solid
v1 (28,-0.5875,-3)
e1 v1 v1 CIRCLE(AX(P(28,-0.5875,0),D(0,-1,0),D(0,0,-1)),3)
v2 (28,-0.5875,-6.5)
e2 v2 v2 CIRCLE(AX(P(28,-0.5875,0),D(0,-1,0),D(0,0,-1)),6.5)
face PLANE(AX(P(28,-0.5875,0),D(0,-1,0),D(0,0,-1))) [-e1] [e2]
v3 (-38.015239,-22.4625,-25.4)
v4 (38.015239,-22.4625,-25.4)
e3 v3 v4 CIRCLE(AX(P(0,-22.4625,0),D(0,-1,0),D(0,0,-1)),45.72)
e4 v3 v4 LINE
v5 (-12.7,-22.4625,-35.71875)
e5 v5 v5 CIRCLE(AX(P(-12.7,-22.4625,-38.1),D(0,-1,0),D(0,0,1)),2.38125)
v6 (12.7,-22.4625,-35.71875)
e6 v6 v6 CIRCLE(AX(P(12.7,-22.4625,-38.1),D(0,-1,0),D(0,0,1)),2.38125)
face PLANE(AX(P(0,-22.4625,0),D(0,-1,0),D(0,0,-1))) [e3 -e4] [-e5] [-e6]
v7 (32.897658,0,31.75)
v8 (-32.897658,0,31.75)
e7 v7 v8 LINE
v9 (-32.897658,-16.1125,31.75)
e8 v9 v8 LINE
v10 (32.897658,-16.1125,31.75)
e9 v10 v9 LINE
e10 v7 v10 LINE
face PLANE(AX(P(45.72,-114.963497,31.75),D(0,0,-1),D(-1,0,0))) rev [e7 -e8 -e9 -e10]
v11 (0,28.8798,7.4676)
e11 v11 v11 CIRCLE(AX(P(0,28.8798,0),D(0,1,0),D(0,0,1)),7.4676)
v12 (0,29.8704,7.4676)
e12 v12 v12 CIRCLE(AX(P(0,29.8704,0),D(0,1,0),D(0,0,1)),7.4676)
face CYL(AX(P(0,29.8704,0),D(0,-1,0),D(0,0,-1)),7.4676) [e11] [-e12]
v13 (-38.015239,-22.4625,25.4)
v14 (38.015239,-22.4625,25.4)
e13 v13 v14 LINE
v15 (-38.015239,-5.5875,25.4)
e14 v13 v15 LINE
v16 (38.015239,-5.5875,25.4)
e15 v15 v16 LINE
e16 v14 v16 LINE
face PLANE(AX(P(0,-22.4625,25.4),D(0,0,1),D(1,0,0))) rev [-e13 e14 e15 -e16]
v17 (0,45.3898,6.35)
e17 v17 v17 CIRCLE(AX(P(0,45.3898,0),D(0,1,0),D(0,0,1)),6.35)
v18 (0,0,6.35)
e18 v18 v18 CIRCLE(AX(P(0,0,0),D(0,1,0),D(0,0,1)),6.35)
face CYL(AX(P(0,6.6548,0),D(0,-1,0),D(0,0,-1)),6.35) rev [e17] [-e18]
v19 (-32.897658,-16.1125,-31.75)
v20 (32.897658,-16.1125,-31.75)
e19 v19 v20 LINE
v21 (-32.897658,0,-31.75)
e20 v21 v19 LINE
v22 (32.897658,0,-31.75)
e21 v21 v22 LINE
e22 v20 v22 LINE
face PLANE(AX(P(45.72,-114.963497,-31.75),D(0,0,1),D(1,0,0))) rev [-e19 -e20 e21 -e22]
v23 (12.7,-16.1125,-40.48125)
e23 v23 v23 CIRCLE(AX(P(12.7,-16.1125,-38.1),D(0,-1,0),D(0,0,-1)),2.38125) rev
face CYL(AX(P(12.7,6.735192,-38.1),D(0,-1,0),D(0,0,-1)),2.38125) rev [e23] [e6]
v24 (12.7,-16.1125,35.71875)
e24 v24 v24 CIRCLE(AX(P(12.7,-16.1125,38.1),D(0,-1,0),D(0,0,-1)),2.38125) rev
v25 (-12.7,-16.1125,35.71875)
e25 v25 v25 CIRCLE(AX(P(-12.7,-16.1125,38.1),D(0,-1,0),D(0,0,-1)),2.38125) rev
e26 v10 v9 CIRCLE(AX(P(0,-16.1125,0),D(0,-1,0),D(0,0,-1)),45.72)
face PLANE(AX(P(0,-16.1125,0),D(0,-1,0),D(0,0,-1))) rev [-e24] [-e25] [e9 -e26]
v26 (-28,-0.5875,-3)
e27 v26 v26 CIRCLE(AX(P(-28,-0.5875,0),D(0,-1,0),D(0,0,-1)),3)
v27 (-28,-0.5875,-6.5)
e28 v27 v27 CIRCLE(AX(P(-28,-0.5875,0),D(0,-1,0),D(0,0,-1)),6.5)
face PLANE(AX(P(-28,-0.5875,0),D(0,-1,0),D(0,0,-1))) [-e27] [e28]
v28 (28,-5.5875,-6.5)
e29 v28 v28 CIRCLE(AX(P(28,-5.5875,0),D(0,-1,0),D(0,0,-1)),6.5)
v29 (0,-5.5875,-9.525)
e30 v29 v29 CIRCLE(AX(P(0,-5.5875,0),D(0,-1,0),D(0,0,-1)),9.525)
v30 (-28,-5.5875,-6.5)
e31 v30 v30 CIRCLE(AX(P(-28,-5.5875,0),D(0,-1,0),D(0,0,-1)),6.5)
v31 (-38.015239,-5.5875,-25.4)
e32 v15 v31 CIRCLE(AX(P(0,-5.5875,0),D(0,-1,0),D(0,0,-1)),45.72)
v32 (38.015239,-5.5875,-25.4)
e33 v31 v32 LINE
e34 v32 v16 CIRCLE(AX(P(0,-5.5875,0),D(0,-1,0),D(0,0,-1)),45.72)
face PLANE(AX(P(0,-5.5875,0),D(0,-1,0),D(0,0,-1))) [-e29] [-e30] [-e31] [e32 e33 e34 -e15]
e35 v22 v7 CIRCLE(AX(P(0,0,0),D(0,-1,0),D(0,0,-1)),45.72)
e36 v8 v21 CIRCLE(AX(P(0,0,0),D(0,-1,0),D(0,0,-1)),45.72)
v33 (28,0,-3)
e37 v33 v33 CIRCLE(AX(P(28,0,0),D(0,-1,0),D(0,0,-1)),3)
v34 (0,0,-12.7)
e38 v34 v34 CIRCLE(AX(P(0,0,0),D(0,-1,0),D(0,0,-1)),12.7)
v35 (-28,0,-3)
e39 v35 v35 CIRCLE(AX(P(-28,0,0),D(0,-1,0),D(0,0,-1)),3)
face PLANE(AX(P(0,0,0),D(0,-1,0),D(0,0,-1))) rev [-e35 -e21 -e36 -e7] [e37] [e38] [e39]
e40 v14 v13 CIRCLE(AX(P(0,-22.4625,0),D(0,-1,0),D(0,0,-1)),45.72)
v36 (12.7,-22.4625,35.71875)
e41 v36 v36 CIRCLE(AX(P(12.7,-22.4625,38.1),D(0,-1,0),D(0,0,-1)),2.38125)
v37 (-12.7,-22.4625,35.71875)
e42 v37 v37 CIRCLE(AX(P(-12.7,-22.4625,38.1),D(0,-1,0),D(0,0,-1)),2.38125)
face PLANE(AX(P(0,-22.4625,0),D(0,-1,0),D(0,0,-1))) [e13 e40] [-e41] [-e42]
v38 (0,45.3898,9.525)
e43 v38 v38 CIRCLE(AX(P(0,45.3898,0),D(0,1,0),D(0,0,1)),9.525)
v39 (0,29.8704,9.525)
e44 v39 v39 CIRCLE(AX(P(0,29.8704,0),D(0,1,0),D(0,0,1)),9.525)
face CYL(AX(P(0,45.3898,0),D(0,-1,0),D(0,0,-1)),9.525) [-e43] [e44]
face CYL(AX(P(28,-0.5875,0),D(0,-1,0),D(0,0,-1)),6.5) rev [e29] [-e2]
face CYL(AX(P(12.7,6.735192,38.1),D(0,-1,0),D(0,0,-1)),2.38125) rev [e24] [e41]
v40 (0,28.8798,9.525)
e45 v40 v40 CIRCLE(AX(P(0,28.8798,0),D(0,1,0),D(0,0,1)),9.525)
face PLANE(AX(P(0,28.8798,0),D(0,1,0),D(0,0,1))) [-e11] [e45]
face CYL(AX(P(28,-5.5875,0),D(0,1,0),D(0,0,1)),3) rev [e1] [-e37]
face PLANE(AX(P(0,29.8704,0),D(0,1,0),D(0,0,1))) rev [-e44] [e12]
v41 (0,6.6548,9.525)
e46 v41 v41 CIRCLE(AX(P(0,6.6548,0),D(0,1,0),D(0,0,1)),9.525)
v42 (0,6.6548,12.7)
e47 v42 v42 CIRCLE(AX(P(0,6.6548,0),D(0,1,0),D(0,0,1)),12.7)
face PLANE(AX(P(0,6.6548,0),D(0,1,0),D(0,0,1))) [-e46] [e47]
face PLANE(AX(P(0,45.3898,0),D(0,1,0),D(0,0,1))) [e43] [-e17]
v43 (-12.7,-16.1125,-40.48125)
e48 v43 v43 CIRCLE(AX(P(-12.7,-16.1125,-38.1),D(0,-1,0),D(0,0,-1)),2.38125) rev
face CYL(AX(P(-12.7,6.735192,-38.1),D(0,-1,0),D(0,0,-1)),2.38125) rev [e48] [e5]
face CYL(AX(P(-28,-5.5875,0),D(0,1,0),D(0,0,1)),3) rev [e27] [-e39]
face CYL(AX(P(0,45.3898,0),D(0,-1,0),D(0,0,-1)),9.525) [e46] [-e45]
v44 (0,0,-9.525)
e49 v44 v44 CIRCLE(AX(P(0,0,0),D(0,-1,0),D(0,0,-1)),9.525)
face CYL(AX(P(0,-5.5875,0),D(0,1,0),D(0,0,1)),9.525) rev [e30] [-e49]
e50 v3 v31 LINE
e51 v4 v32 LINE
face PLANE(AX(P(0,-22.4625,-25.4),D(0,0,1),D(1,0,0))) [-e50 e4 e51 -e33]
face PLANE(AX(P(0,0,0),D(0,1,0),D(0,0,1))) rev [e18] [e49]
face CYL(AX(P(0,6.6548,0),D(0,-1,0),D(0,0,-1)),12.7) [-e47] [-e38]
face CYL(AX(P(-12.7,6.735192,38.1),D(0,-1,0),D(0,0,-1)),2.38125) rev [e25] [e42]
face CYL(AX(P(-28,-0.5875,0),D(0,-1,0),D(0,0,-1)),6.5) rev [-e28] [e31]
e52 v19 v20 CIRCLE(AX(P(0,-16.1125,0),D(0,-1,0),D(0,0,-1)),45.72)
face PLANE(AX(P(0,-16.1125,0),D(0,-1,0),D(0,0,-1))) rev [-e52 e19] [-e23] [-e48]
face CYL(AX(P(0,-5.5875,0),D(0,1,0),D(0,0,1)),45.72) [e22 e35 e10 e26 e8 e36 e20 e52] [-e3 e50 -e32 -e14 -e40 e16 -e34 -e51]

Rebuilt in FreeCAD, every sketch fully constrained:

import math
import FreeCAD as App
import Part
import Sketcher
Q = App.Units.Quantity

doc = App.newDocument("Part")
body = doc.addObject("PartDesign::Body", "Body")

# Sketch on XZ plane
sketch1 = body.newObject("Sketcher::SketchObject", "Sketch")
sketch1.AttachmentSupport = (doc.getObject("XZ_Plane"), [""])
sketch1.MapMode = "FlatFace"
sketch1.addGeometry(Part.Circle(App.Vector(0, 0, 0), App.Vector(0, 0, 1), 13), False)
sketch1.addGeometry(Part.Circle(App.Vector(0, 0, 0), App.Vector(0, 0, 1), 6), False)
sketch1.addConstraint(Sketcher.Constraint("Coincident", 0, 3, -1, 1))
sketch1.addConstraint(Sketcher.Constraint("Coincident", 1, 3, -1, 1))
sketch1.addConstraint(Sketcher.Constraint("Diameter", 0, Q("1 in")))
sketch1.addConstraint(Sketcher.Constraint("Diameter", 1, Q("0.5 in")))
pad1 = body.newObject("PartDesign::Pad", "Pad")
pad1.Profile = sketch1
pad1.Length = Q("0.262 in")
pad1.Reversed = True

# Sketch on XZ plane
sketch2 = body.newObject("Sketcher::SketchObject", "Sketch001")
sketch2.AttachmentSupport = (doc.getObject("XZ_Plane"), [""])
sketch2.MapMode = "FlatFace"
sketch2.AttachmentOffset = App.Placement(App.Vector(0, 0, -0.262 * 25.4), App.Rotation())
sketch2.addGeometry(Part.Circle(App.Vector(0, 0, 0), App.Vector(0, 0, 1), 10), False)
sketch2.addGeometry(Part.Circle(App.Vector(0, 0, 0), App.Vector(0, 0, 1), 6), False)
sketch2.addConstraint(Sketcher.Constraint("Coincident", 0, 3, -1, 1))
sketch2.addConstraint(Sketcher.Constraint("Coincident", 1, 3, -1, 1))
sketch2.addConstraint(Sketcher.Constraint("Diameter", 1, Q("0.5 in")))
sketch2.addConstraint(Sketcher.Constraint("Diameter", 0, Q("0.75 in")))
pad2 = body.newObject("PartDesign::Pad", "Pad001")
pad2.Profile = sketch2
pad2.Length = Q("1.525 in")
pad2.Reversed = True

# Sketch on XZ plane
sketch3 = body.newObject("Sketcher::SketchObject", "Sketch002")
sketch3.AttachmentSupport = (doc.getObject("XZ_Plane"), [""])
sketch3.MapMode = "FlatFace"
sketch3.AttachmentOffset = App.Placement(App.Vector(0, 0, -1.137 * 25.4), App.Rotation())
sketch3.addGeometry(Part.LineSegment(App.Vector(19, 19, 0), App.Vector(19, -19, 0)), False)
sketch3.addGeometry(Part.LineSegment(App.Vector(19, -19, 0), App.Vector(-19, -19, 0)), False)
sketch3.addGeometry(Part.LineSegment(App.Vector(-19, -19, 0), App.Vector(-19, 19, 0)), False)
sketch3.addGeometry(Part.LineSegment(App.Vector(-19, 19, 0), App.Vector(19, 19, 0)), False)
sketch3.addGeometry(Part.Circle(App.Vector(0, 0, 0), App.Vector(0, 0, 1), 7), False)
sketch3.addConstraint(Sketcher.Constraint("Coincident", 0, 2, 1, 1))
sketch3.addConstraint(Sketcher.Constraint("Coincident", 1, 2, 2, 1))
sketch3.addConstraint(Sketcher.Constraint("Coincident", 2, 2, 3, 1))
sketch3.addConstraint(Sketcher.Constraint("Coincident", 3, 2, 0, 1))
sketch3.addConstraint(Sketcher.Constraint("Vertical", 0))
sketch3.addConstraint(Sketcher.Constraint("Horizontal", 1))
sketch3.addConstraint(Sketcher.Constraint("Vertical", 2))
sketch3.addConstraint(Sketcher.Constraint("Horizontal", 3))
sketch3.addConstraint(Sketcher.Constraint("Coincident", 4, 3, -1, 1))
sketch3.addConstraint(Sketcher.Constraint("Symmetric", 0, 2, 2, 2, -1, 1))
sketch3.addConstraint(Sketcher.Constraint("Equal", 3, 0))
sketch3.addConstraint(Sketcher.Constraint("Diameter", 4, Q("0.588 in")))
sketch3.addConstraint(Sketcher.Constraint("DistanceX", 1, 2, 1, 1, Q("38.976 mm")))
pocket1 = body.newObject("PartDesign::Pocket", "Pocket")
pocket1.Profile = sketch3
pocket1.Length = Q("0.039 in")

# Sketch on XZ plane
sketch4 = body.newObject("Sketcher::SketchObject", "Sketch003")
sketch4.AttachmentSupport = (doc.getObject("XZ_Plane"), [""])
sketch4.MapMode = "FlatFace"
sketch4.addGeometry(Part.Circle(App.Vector(0, 0, 0), App.Vector(0, 0, 1), 45.7), False)
sketch4.addGeometry(Part.Circle(App.Vector(-28, 0, 0), App.Vector(0, 0, 1), 3), False)
sketch4.addGeometry(Part.Circle(App.Vector(0, 0, 0), App.Vector(0, 0, 1), 9.5), False)
sketch4.addGeometry(Part.Circle(App.Vector(28, 0, 0), App.Vector(0, 0, 1), 3), False)
sketch4.addConstraint(Sketcher.Constraint("Coincident", 0, 3, -1, 1))
sketch4.addConstraint(Sketcher.Constraint("Coincident", 2, 3, -1, 1))
sketch4.addConstraint(Sketcher.Constraint("Equal", 1, 3))
sketch4.addConstraint(Sketcher.Constraint("Symmetric", 1, 3, 3, 3, -1, 1))
sketch4.addConstraint(Sketcher.Constraint("PointOnObject", 1, 3, -1))
sketch4.addConstraint(Sketcher.Constraint("Diameter", 0, Q("3.6 in")))
sketch4.addConstraint(Sketcher.Constraint("Diameter", 2, Q("0.75 in")))
sketch4.addConstraint(Sketcher.Constraint("Diameter", 1, Q("6 mm")))
sketch4.addConstraint(Sketcher.Constraint("DistanceX", 1, 3, -1, 1, Q("28 mm")))
pad3 = body.newObject("PartDesign::Pad", "Pad002")
pad3.Profile = sketch4
pad3.Length = 5.5875

# Sketch on XZ plane
sketch5 = body.newObject("Sketcher::SketchObject", "Sketch004")
sketch5.AttachmentSupport = (doc.getObject("XZ_Plane"), [""])
sketch5.MapMode = "FlatFace"
sketch5.AttachmentOffset = App.Placement(App.Vector(0, 0, 5.5875), App.Rotation())
sketch5.addGeometry(Part.Circle(App.Vector(-28, 0, 0), App.Vector(0, 0, 1), 6), False)
sketch5.addGeometry(Part.Circle(App.Vector(28, 0, 0), App.Vector(0, 0, 1), 6), False)
sketch5.addConstraint(Sketcher.Constraint("Equal", 0, 1))
sketch5.addConstraint(Sketcher.Constraint("Symmetric", 0, 3, 1, 3, -1, 1))
sketch5.addConstraint(Sketcher.Constraint("PointOnObject", 0, 3, -1))
sketch5.addConstraint(Sketcher.Constraint("Diameter", 0, Q("13 mm")))
sketch5.addConstraint(Sketcher.Constraint("DistanceX", 0, 3, -1, 1, Q("28 mm")))
pocket2 = body.newObject("PartDesign::Pocket", "Pocket001")
pocket2.Profile = sketch5
pocket2.Length = 5

# Sketch on XZ plane
sketch6 = body.newObject("Sketcher::SketchObject", "Sketch005")
sketch6.AttachmentSupport = (doc.getObject("XZ_Plane"), [""])
sketch6.MapMode = "FlatFace"
sketch6.AttachmentOffset = App.Placement(App.Vector(0, 0, 5.5875), App.Rotation())
sketch6.addGeometry(Part.LineSegment(App.Vector(38, -25, 0), App.Vector(-38, -25, 0)), False)
sketch6.addGeometry(Part.ArcOfCircle(Part.Circle(App.Vector(0, 0, 0), App.Vector(0, 0, 1), 46), math.radians(-146), math.radians(-34)), False)
sketch6.addGeometry(Part.ArcOfCircle(Part.Circle(App.Vector(0, 0, 0), App.Vector(0, 0, 1), 46), math.radians(34), math.radians(146)), False)
sketch6.addGeometry(Part.LineSegment(App.Vector(-38, 25, 0), App.Vector(38, 25, 0)), False)
sketch6.addConstraint(Sketcher.Constraint("Coincident", 0, 1, 1, 2))
sketch6.addConstraint(Sketcher.Constraint("Coincident", 1, 1, 0, 2))
sketch6.addConstraint(Sketcher.Constraint("Coincident", 2, 1, 3, 2))
sketch6.addConstraint(Sketcher.Constraint("Coincident", 3, 1, 2, 2))
sketch6.addConstraint(Sketcher.Constraint("Horizontal", 0))
sketch6.addConstraint(Sketcher.Constraint("Horizontal", 3))
sketch6.addConstraint(Sketcher.Constraint("Coincident", 1, 3, -1, 1))
sketch6.addConstraint(Sketcher.Constraint("Coincident", 2, 3, -1, 1))
sketch6.addConstraint(Sketcher.Constraint("Equal", 1, 2))
sketch6.addConstraint(Sketcher.Constraint("Vertical", 0, 1, 2, 1))
sketch6.addConstraint(Sketcher.Constraint("Radius", 1, Q("1.8 in")))
sketch6.addConstraint(Sketcher.Constraint("DistanceY", 0, 1, -1, 1, Q("1 in")))
pad4 = body.newObject("PartDesign::Pad", "Pad003")
pad4.Profile = sketch6
pad4.Length = 16.875

# Sketch on XZ plane
sketch7 = body.newObject("Sketcher::SketchObject", "Sketch006")
sketch7.AttachmentSupport = (doc.getObject("XZ_Plane"), [""])
sketch7.MapMode = "FlatFace"
sketch7.AttachmentOffset = App.Placement(App.Vector(0, 0, 22.4625), App.Rotation())
sketch7.addGeometry(Part.Circle(App.Vector(12.7, 38.1, 0), App.Vector(0, 0, 1), 2.4), False)
sketch7.addGeometry(Part.Circle(App.Vector(-12.7, 38.1, 0), App.Vector(0, 0, 1), 2.4), False)
sketch7.addGeometry(Part.Circle(App.Vector(-12.7, -38.1, 0), App.Vector(0, 0, 1), 2.4), False)
sketch7.addGeometry(Part.Circle(App.Vector(12.7, -38.1, 0), App.Vector(0, 0, 1), 2.4), False)
sketch7.addConstraint(Sketcher.Constraint("Equal", 0, 1))
sketch7.addConstraint(Sketcher.Constraint("Equal", 1, 2))
sketch7.addConstraint(Sketcher.Constraint("Equal", 2, 3))
sketch7.addConstraint(Sketcher.Constraint("Symmetric", 0, 3, 2, 3, -1, 1))
sketch7.addConstraint(Sketcher.Constraint("Symmetric", 1, 3, 3, 3, -1, 1))
sketch7.addConstraint(Sketcher.Constraint("Symmetric", 0, 3, 1, 3, -2))
sketch7.addConstraint(Sketcher.Constraint("Diameter", 0, Q("0.1875 in")))
sketch7.addConstraint(Sketcher.Constraint("DistanceX", 1, 3, 0, 3, Q("1 in")))
sketch7.addConstraint(Sketcher.Constraint("DistanceY", 2, 3, 1, 3, Q("3 in")))
pocket3 = body.newObject("PartDesign::Pocket", "Pocket002")
pocket3.Profile = sketch7
pocket3.Length = 22.4625

# Sketch on XZ plane
sketch8 = body.newObject("Sketcher::SketchObject", "Sketch007")
sketch8.AttachmentSupport = (doc.getObject("XZ_Plane"), [""])
sketch8.MapMode = "FlatFace"
sketch8.addGeometry(Part.LineSegment(App.Vector(-46, 32, 0), App.Vector(-46, 46, 0)), False)
sketch8.addGeometry(Part.LineSegment(App.Vector(-46, 46, 0), App.Vector(46, 46, 0)), False)
sketch8.addGeometry(Part.LineSegment(App.Vector(46, 46, 0), App.Vector(46, 32, 0)), False)
sketch8.addGeometry(Part.LineSegment(App.Vector(46, 32, 0), App.Vector(-46, 32, 0)), False)
sketch8.addGeometry(Part.LineSegment(App.Vector(-46, -46, 0), App.Vector(-46, -32, 0)), False)
sketch8.addGeometry(Part.LineSegment(App.Vector(-46, -32, 0), App.Vector(46, -32, 0)), False)
sketch8.addGeometry(Part.LineSegment(App.Vector(46, -32, 0), App.Vector(46, -46, 0)), False)
sketch8.addGeometry(Part.LineSegment(App.Vector(46, -46, 0), App.Vector(-46, -46, 0)), False)
sketch8.addConstraint(Sketcher.Constraint("Coincident", 0, 2, 1, 1))
sketch8.addConstraint(Sketcher.Constraint("Coincident", 1, 2, 2, 1))
sketch8.addConstraint(Sketcher.Constraint("Coincident", 2, 2, 3, 1))
sketch8.addConstraint(Sketcher.Constraint("Coincident", 3, 2, 0, 1))
sketch8.addConstraint(Sketcher.Constraint("Coincident", 4, 2, 5, 1))
sketch8.addConstraint(Sketcher.Constraint("Coincident", 5, 2, 6, 1))
sketch8.addConstraint(Sketcher.Constraint("Coincident", 6, 2, 7, 1))
sketch8.addConstraint(Sketcher.Constraint("Coincident", 7, 2, 4, 1))
sketch8.addConstraint(Sketcher.Constraint("Vertical", 0))
sketch8.addConstraint(Sketcher.Constraint("Horizontal", 1))
sketch8.addConstraint(Sketcher.Constraint("Vertical", 2))
sketch8.addConstraint(Sketcher.Constraint("Horizontal", 3))
sketch8.addConstraint(Sketcher.Constraint("Vertical", 4))
sketch8.addConstraint(Sketcher.Constraint("Horizontal", 5))
sketch8.addConstraint(Sketcher.Constraint("Vertical", 6))
sketch8.addConstraint(Sketcher.Constraint("Horizontal", 7))
sketch8.addConstraint(Sketcher.Constraint("Symmetric", 2, 2, 4, 2, -1, 1))
sketch8.addConstraint(Sketcher.Constraint("Symmetric", 0, 2, 6, 2, -1, 1))
sketch8.addConstraint(Sketcher.Constraint("Vertical", 3, 2, 4, 2))
sketch8.addConstraint(Sketcher.Constraint("DistanceX", 1, 1, 1, 2, Q("3.6 in")))
sketch8.addConstraint(Sketcher.Constraint("DistanceY", 0, 1, 0, 2, Q("0.55 in")))
sketch8.addConstraint(Sketcher.Constraint("DistanceY", -1, 1, 0, 2, Q("1.8 in")))
pocket4 = body.newObject("PartDesign::Pocket", "Pocket003")
pocket4.Profile = sketch8
pocket4.Length = 16.1125
pocket4.Reversed = True

doc.recompute()
